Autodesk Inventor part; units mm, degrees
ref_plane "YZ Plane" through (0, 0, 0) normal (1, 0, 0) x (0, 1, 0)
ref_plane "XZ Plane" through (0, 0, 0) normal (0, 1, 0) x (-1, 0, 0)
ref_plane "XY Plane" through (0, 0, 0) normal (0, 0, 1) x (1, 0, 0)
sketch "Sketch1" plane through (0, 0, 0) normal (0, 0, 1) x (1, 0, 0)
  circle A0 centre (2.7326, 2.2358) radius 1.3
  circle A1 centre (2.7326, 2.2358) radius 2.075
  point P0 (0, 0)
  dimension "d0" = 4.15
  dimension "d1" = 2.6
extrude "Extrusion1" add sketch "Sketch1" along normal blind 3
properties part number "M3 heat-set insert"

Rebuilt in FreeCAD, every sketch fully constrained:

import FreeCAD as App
import Part
import Sketcher
from FreeCAD import Vector

doc = App.newDocument("Part")
body = doc.addObject("PartDesign::Body", "Body")

# Sketch on XY plane
sketch1 = body.newObject("Sketcher::SketchObject", "Sketch")
sketch1.AttachmentSupport = (doc.getObject("XY_Plane"), [""])
sketch1.MapMode = "FlatFace"
sketch1.addGeometry([
    Part.Circle(Vector(2.7, 2.2, 0), Vector(0, 0, 1), 2.1),
    Part.Circle(Vector(2.7, 2.2, 0), Vector(0, 0, 1), 1.3),
], False)
sketch1.addConstraint([
    Sketcher.Constraint("Coincident", 1, 3, 0, 3),
    Sketcher.Constraint("Diameter", 1, 2.6),
    Sketcher.Constraint("Diameter", 0, 4.15),
    Sketcher.Constraint("DistanceX", -1, 1, 0, 3, 2.7326),
    Sketcher.Constraint("DistanceY", -1, 1, 0, 3, 2.2358),
])
pad1 = body.newObject("PartDesign::Pad", "Pad")
pad1.Profile = sketch1
pad1.Length = 3

doc.recompute()
